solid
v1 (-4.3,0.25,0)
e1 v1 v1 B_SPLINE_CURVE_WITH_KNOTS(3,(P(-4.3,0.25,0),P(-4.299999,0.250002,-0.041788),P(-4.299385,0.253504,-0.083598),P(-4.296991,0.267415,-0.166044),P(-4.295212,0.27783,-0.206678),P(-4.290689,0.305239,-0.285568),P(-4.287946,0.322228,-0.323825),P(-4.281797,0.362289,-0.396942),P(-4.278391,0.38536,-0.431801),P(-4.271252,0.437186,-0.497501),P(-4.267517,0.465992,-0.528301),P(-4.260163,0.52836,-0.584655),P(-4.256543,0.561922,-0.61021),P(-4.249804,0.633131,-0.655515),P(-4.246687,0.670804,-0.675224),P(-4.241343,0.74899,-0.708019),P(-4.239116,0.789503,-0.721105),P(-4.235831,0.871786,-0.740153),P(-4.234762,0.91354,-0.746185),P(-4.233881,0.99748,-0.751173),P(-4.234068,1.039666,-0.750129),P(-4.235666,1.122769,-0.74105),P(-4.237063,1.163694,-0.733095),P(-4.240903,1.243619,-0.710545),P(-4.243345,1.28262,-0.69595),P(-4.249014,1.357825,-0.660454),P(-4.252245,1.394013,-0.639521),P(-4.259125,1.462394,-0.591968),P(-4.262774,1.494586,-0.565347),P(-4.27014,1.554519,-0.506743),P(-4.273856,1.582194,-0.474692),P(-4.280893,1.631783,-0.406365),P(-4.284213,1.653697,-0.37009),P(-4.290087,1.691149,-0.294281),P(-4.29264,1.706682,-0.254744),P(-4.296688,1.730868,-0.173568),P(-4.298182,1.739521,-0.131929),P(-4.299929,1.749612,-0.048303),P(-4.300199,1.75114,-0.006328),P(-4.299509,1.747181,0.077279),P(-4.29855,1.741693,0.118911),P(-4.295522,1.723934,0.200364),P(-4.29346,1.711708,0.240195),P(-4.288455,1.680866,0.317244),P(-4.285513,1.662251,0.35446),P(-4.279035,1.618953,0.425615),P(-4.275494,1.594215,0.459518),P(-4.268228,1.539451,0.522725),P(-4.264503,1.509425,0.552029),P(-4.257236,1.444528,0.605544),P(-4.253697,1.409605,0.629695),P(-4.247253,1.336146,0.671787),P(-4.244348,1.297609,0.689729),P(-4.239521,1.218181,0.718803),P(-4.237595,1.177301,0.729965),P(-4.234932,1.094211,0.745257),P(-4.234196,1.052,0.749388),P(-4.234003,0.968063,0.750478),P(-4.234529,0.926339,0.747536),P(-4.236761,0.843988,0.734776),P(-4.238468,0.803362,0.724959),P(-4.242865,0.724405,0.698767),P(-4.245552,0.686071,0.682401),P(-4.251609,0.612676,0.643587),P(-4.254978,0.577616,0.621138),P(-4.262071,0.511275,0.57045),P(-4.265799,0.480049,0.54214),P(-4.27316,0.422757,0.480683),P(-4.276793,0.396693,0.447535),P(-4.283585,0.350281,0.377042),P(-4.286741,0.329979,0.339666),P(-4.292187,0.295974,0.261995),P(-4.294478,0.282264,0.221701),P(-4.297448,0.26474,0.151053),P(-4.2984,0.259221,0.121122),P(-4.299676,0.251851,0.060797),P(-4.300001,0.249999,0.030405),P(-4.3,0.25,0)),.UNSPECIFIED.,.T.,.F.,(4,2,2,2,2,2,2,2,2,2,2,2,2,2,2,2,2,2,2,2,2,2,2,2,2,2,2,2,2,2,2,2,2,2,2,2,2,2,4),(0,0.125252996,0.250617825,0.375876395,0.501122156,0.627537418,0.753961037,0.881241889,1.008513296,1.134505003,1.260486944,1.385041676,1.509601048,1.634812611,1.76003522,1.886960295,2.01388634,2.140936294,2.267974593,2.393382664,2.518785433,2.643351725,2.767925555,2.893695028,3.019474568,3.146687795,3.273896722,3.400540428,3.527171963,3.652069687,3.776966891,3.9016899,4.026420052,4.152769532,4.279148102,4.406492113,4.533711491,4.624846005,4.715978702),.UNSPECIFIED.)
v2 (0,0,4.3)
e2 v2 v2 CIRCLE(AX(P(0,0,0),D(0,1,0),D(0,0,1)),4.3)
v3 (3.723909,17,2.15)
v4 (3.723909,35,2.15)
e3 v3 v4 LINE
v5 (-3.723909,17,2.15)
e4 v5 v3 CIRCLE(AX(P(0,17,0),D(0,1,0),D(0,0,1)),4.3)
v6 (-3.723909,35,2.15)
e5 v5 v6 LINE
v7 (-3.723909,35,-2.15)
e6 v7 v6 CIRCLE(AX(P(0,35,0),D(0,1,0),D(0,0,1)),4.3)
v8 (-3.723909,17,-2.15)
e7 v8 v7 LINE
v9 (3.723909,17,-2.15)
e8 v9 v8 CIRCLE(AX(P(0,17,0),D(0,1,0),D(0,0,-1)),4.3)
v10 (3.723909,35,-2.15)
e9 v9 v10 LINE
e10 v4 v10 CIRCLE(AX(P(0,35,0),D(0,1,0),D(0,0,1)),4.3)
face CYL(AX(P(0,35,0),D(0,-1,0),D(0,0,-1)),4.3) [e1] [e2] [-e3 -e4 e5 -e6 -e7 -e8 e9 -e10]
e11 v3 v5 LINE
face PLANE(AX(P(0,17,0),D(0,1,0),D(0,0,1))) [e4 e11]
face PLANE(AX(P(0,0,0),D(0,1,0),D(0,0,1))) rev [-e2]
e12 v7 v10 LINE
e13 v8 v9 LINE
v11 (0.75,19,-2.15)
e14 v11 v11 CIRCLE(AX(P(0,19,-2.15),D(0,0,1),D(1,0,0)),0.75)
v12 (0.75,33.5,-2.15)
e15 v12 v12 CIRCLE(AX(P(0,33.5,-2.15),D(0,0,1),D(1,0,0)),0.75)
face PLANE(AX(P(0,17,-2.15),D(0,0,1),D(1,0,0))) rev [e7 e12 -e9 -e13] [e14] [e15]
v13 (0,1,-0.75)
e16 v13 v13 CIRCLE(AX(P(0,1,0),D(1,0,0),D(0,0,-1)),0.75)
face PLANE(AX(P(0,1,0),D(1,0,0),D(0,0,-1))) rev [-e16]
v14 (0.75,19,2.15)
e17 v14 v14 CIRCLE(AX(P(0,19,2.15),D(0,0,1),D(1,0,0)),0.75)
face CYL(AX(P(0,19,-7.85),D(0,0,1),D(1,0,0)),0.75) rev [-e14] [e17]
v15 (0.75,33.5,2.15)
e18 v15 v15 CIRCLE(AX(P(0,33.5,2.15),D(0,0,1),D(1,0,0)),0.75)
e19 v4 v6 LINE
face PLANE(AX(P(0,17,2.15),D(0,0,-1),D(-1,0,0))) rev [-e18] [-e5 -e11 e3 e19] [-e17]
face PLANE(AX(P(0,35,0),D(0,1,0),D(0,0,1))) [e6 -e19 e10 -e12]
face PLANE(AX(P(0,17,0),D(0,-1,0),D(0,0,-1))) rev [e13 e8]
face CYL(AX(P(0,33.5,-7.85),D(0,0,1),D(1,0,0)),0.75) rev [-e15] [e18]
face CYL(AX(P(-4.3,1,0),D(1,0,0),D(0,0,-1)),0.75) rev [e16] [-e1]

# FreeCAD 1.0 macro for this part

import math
import FreeCAD as App
import Part
import Sketcher
from FreeCAD import Vector

doc = App.newDocument("Part")
body = doc.addObject("PartDesign::Body", "Body")

# Sketch on XZ plane
sketch1 = body.newObject("Sketcher::SketchObject", "Sketch")
sketch1.AttachmentSupport = (doc.getObject("XZ_Plane"), [""])
sketch1.MapMode = "FlatFace"
sketch1.addGeometry(Part.Circle(Vector(0, 0, 0), Vector(0, 0, 1), 4.3), False)
sketch1.addConstraint(Sketcher.Constraint("Coincident", 0, 3, -1, 1))
sketch1.addConstraint(Sketcher.Constraint("Diameter", 0, 8.6))
pad1 = body.newObject("PartDesign::Pad", "Pad")
pad1.Profile = sketch1
pad1.Length = 35
pad1.Reversed = True

# Sketch on XZ plane
sketch2 = body.newObject("Sketcher::SketchObject", "Sketch001")
sketch2.AttachmentSupport = (doc.getObject("XZ_Plane"), [""])
sketch2.MapMode = "FlatFace"
sketch2.AttachmentOffset = App.Placement(Vector(0, 0, -35), App.Rotation())
sketch2.addGeometry(Part.ArcOfCircle(Part.Circle(Vector(0, 0, 0), Vector(0, 0, 1), 4.3), math.radians(-150), math.radians(-30)), False)
sketch2.addGeometry(Part.LineSegment(Vector(-3.7, -2.1, 0), Vector(3.7, -2.1, 0)), False)
sketch2.addGeometry(Part.ArcOfCircle(Part.Circle(Vector(0, 0, 0), Vector(0, 0, 1), 4.3), math.radians(30), math.radians(150)), False)
sketch2.addGeometry(Part.LineSegment(Vector(3.7, 2.1, 0), Vector(-3.7, 2.1, 0)), False)
sketch2.addConstraint(Sketcher.Constraint("Coincident", 0, 1, 1, 1))
sketch2.addConstraint(Sketcher.Constraint("Coincident", 1, 2, 0, 2))
sketch2.addConstraint(Sketcher.Constraint("Coincident", 2, 1, 3, 1))
sketch2.addConstraint(Sketcher.Constraint("Coincident", 3, 2, 2, 2))
sketch2.addConstraint(Sketcher.Constraint("Horizontal", 1))
sketch2.addConstraint(Sketcher.Constraint("Horizontal", 3))
sketch2.addConstraint(Sketcher.Constraint("Coincident", 0, 3, -1, 1))
sketch2.addConstraint(Sketcher.Constraint("Coincident", 2, 3, -1, 1))
sketch2.addConstraint(Sketcher.Constraint("Equal", 0, 2))
sketch2.addConstraint(Sketcher.Constraint("Vertical", 1, 2, 2, 1))
sketch2.addConstraint(Sketcher.Constraint("Radius", 0, 4.3))
sketch2.addConstraint(Sketcher.Constraint("DistanceY", 1, 2, 2, 1, 4.3))
pocket1 = body.newObject("PartDesign::Pocket", "Pocket")
pocket1.Profile = sketch2
pocket1.Length = 18
pocket1.Reversed = True

# Sketch on XY plane
sketch3 = body.newObject("Sketcher::SketchObject", "Sketch002")
sketch3.AttachmentSupport = (doc.getObject("XY_Plane"), [""])
sketch3.MapMode = "FlatFace"
sketch3.AttachmentOffset = App.Placement(Vector(0, 0, 2.15), App.Rotation())
sketch3.addGeometry(Part.Circle(Vector(0, 19, 0), Vector(0, 0, 1), 0.8), False)
sketch3.addConstraint(Sketcher.Constraint("PointOnObject", 0, 3, -2))
sketch3.addConstraint(Sketcher.Constraint("Diameter", 0, 1.5))
sketch3.addConstraint(Sketcher.Constraint("DistanceY", -1, 1, 0, 3, 19.0))
pocket2 = body.newObject("PartDesign::Pocket", "Pocket001")
pocket2.Profile = sketch3
pocket2.Length = 10

# Sketch on YZ plane
sketch4 = body.newObject("Sketcher::SketchObject", "Sketch003")
sketch4.AttachmentSupport = (doc.getObject("YZ_Plane"), [""])
sketch4.MapMode = "FlatFace"
sketch4.addGeometry(Part.Circle(Vector(1, 0, 0), Vector(0, 0, 1), 0.8), False)
sketch4.addConstraint(Sketcher.Constraint("PointOnObject", 0, 3, -1))
sketch4.addConstraint(Sketcher.Constraint("Diameter", 0, 1.5))
sketch4.addConstraint(Sketcher.Constraint("DistanceX", -1, 1, 0, 3, 1.0))
pocket3 = body.newObject("PartDesign::Pocket", "Pocket002")
pocket3.Profile = sketch4
pocket3.Type = "ThroughAll"

# Sketch on XY plane
sketch5 = body.newObject("Sketcher::SketchObject", "Sketch004")
sketch5.AttachmentSupport = (doc.getObject("XY_Plane"), [""])
sketch5.MapMode = "FlatFace"
sketch5.AttachmentOffset = App.Placement(Vector(0, 0, 2.15), App.Rotation())
sketch5.addGeometry(Part.Circle(Vector(0, 33.5, 0), Vector(0, 0, 1), 0.8), False)
sketch5.addConstraint(Sketcher.Constraint("PointOnObject", 0, 3, -2))
sketch5.addConstraint(Sketcher.Constraint("Diameter", 0, 1.5))
sketch5.addConstraint(Sketcher.Constraint("DistanceY", -1, 1, 0, 3, 33.5))
pocket4 = body.newObject("PartDesign::Pocket", "Pocket003")
pocket4.Profile = sketch5
pocket4.Length = 10

doc.recompute()
